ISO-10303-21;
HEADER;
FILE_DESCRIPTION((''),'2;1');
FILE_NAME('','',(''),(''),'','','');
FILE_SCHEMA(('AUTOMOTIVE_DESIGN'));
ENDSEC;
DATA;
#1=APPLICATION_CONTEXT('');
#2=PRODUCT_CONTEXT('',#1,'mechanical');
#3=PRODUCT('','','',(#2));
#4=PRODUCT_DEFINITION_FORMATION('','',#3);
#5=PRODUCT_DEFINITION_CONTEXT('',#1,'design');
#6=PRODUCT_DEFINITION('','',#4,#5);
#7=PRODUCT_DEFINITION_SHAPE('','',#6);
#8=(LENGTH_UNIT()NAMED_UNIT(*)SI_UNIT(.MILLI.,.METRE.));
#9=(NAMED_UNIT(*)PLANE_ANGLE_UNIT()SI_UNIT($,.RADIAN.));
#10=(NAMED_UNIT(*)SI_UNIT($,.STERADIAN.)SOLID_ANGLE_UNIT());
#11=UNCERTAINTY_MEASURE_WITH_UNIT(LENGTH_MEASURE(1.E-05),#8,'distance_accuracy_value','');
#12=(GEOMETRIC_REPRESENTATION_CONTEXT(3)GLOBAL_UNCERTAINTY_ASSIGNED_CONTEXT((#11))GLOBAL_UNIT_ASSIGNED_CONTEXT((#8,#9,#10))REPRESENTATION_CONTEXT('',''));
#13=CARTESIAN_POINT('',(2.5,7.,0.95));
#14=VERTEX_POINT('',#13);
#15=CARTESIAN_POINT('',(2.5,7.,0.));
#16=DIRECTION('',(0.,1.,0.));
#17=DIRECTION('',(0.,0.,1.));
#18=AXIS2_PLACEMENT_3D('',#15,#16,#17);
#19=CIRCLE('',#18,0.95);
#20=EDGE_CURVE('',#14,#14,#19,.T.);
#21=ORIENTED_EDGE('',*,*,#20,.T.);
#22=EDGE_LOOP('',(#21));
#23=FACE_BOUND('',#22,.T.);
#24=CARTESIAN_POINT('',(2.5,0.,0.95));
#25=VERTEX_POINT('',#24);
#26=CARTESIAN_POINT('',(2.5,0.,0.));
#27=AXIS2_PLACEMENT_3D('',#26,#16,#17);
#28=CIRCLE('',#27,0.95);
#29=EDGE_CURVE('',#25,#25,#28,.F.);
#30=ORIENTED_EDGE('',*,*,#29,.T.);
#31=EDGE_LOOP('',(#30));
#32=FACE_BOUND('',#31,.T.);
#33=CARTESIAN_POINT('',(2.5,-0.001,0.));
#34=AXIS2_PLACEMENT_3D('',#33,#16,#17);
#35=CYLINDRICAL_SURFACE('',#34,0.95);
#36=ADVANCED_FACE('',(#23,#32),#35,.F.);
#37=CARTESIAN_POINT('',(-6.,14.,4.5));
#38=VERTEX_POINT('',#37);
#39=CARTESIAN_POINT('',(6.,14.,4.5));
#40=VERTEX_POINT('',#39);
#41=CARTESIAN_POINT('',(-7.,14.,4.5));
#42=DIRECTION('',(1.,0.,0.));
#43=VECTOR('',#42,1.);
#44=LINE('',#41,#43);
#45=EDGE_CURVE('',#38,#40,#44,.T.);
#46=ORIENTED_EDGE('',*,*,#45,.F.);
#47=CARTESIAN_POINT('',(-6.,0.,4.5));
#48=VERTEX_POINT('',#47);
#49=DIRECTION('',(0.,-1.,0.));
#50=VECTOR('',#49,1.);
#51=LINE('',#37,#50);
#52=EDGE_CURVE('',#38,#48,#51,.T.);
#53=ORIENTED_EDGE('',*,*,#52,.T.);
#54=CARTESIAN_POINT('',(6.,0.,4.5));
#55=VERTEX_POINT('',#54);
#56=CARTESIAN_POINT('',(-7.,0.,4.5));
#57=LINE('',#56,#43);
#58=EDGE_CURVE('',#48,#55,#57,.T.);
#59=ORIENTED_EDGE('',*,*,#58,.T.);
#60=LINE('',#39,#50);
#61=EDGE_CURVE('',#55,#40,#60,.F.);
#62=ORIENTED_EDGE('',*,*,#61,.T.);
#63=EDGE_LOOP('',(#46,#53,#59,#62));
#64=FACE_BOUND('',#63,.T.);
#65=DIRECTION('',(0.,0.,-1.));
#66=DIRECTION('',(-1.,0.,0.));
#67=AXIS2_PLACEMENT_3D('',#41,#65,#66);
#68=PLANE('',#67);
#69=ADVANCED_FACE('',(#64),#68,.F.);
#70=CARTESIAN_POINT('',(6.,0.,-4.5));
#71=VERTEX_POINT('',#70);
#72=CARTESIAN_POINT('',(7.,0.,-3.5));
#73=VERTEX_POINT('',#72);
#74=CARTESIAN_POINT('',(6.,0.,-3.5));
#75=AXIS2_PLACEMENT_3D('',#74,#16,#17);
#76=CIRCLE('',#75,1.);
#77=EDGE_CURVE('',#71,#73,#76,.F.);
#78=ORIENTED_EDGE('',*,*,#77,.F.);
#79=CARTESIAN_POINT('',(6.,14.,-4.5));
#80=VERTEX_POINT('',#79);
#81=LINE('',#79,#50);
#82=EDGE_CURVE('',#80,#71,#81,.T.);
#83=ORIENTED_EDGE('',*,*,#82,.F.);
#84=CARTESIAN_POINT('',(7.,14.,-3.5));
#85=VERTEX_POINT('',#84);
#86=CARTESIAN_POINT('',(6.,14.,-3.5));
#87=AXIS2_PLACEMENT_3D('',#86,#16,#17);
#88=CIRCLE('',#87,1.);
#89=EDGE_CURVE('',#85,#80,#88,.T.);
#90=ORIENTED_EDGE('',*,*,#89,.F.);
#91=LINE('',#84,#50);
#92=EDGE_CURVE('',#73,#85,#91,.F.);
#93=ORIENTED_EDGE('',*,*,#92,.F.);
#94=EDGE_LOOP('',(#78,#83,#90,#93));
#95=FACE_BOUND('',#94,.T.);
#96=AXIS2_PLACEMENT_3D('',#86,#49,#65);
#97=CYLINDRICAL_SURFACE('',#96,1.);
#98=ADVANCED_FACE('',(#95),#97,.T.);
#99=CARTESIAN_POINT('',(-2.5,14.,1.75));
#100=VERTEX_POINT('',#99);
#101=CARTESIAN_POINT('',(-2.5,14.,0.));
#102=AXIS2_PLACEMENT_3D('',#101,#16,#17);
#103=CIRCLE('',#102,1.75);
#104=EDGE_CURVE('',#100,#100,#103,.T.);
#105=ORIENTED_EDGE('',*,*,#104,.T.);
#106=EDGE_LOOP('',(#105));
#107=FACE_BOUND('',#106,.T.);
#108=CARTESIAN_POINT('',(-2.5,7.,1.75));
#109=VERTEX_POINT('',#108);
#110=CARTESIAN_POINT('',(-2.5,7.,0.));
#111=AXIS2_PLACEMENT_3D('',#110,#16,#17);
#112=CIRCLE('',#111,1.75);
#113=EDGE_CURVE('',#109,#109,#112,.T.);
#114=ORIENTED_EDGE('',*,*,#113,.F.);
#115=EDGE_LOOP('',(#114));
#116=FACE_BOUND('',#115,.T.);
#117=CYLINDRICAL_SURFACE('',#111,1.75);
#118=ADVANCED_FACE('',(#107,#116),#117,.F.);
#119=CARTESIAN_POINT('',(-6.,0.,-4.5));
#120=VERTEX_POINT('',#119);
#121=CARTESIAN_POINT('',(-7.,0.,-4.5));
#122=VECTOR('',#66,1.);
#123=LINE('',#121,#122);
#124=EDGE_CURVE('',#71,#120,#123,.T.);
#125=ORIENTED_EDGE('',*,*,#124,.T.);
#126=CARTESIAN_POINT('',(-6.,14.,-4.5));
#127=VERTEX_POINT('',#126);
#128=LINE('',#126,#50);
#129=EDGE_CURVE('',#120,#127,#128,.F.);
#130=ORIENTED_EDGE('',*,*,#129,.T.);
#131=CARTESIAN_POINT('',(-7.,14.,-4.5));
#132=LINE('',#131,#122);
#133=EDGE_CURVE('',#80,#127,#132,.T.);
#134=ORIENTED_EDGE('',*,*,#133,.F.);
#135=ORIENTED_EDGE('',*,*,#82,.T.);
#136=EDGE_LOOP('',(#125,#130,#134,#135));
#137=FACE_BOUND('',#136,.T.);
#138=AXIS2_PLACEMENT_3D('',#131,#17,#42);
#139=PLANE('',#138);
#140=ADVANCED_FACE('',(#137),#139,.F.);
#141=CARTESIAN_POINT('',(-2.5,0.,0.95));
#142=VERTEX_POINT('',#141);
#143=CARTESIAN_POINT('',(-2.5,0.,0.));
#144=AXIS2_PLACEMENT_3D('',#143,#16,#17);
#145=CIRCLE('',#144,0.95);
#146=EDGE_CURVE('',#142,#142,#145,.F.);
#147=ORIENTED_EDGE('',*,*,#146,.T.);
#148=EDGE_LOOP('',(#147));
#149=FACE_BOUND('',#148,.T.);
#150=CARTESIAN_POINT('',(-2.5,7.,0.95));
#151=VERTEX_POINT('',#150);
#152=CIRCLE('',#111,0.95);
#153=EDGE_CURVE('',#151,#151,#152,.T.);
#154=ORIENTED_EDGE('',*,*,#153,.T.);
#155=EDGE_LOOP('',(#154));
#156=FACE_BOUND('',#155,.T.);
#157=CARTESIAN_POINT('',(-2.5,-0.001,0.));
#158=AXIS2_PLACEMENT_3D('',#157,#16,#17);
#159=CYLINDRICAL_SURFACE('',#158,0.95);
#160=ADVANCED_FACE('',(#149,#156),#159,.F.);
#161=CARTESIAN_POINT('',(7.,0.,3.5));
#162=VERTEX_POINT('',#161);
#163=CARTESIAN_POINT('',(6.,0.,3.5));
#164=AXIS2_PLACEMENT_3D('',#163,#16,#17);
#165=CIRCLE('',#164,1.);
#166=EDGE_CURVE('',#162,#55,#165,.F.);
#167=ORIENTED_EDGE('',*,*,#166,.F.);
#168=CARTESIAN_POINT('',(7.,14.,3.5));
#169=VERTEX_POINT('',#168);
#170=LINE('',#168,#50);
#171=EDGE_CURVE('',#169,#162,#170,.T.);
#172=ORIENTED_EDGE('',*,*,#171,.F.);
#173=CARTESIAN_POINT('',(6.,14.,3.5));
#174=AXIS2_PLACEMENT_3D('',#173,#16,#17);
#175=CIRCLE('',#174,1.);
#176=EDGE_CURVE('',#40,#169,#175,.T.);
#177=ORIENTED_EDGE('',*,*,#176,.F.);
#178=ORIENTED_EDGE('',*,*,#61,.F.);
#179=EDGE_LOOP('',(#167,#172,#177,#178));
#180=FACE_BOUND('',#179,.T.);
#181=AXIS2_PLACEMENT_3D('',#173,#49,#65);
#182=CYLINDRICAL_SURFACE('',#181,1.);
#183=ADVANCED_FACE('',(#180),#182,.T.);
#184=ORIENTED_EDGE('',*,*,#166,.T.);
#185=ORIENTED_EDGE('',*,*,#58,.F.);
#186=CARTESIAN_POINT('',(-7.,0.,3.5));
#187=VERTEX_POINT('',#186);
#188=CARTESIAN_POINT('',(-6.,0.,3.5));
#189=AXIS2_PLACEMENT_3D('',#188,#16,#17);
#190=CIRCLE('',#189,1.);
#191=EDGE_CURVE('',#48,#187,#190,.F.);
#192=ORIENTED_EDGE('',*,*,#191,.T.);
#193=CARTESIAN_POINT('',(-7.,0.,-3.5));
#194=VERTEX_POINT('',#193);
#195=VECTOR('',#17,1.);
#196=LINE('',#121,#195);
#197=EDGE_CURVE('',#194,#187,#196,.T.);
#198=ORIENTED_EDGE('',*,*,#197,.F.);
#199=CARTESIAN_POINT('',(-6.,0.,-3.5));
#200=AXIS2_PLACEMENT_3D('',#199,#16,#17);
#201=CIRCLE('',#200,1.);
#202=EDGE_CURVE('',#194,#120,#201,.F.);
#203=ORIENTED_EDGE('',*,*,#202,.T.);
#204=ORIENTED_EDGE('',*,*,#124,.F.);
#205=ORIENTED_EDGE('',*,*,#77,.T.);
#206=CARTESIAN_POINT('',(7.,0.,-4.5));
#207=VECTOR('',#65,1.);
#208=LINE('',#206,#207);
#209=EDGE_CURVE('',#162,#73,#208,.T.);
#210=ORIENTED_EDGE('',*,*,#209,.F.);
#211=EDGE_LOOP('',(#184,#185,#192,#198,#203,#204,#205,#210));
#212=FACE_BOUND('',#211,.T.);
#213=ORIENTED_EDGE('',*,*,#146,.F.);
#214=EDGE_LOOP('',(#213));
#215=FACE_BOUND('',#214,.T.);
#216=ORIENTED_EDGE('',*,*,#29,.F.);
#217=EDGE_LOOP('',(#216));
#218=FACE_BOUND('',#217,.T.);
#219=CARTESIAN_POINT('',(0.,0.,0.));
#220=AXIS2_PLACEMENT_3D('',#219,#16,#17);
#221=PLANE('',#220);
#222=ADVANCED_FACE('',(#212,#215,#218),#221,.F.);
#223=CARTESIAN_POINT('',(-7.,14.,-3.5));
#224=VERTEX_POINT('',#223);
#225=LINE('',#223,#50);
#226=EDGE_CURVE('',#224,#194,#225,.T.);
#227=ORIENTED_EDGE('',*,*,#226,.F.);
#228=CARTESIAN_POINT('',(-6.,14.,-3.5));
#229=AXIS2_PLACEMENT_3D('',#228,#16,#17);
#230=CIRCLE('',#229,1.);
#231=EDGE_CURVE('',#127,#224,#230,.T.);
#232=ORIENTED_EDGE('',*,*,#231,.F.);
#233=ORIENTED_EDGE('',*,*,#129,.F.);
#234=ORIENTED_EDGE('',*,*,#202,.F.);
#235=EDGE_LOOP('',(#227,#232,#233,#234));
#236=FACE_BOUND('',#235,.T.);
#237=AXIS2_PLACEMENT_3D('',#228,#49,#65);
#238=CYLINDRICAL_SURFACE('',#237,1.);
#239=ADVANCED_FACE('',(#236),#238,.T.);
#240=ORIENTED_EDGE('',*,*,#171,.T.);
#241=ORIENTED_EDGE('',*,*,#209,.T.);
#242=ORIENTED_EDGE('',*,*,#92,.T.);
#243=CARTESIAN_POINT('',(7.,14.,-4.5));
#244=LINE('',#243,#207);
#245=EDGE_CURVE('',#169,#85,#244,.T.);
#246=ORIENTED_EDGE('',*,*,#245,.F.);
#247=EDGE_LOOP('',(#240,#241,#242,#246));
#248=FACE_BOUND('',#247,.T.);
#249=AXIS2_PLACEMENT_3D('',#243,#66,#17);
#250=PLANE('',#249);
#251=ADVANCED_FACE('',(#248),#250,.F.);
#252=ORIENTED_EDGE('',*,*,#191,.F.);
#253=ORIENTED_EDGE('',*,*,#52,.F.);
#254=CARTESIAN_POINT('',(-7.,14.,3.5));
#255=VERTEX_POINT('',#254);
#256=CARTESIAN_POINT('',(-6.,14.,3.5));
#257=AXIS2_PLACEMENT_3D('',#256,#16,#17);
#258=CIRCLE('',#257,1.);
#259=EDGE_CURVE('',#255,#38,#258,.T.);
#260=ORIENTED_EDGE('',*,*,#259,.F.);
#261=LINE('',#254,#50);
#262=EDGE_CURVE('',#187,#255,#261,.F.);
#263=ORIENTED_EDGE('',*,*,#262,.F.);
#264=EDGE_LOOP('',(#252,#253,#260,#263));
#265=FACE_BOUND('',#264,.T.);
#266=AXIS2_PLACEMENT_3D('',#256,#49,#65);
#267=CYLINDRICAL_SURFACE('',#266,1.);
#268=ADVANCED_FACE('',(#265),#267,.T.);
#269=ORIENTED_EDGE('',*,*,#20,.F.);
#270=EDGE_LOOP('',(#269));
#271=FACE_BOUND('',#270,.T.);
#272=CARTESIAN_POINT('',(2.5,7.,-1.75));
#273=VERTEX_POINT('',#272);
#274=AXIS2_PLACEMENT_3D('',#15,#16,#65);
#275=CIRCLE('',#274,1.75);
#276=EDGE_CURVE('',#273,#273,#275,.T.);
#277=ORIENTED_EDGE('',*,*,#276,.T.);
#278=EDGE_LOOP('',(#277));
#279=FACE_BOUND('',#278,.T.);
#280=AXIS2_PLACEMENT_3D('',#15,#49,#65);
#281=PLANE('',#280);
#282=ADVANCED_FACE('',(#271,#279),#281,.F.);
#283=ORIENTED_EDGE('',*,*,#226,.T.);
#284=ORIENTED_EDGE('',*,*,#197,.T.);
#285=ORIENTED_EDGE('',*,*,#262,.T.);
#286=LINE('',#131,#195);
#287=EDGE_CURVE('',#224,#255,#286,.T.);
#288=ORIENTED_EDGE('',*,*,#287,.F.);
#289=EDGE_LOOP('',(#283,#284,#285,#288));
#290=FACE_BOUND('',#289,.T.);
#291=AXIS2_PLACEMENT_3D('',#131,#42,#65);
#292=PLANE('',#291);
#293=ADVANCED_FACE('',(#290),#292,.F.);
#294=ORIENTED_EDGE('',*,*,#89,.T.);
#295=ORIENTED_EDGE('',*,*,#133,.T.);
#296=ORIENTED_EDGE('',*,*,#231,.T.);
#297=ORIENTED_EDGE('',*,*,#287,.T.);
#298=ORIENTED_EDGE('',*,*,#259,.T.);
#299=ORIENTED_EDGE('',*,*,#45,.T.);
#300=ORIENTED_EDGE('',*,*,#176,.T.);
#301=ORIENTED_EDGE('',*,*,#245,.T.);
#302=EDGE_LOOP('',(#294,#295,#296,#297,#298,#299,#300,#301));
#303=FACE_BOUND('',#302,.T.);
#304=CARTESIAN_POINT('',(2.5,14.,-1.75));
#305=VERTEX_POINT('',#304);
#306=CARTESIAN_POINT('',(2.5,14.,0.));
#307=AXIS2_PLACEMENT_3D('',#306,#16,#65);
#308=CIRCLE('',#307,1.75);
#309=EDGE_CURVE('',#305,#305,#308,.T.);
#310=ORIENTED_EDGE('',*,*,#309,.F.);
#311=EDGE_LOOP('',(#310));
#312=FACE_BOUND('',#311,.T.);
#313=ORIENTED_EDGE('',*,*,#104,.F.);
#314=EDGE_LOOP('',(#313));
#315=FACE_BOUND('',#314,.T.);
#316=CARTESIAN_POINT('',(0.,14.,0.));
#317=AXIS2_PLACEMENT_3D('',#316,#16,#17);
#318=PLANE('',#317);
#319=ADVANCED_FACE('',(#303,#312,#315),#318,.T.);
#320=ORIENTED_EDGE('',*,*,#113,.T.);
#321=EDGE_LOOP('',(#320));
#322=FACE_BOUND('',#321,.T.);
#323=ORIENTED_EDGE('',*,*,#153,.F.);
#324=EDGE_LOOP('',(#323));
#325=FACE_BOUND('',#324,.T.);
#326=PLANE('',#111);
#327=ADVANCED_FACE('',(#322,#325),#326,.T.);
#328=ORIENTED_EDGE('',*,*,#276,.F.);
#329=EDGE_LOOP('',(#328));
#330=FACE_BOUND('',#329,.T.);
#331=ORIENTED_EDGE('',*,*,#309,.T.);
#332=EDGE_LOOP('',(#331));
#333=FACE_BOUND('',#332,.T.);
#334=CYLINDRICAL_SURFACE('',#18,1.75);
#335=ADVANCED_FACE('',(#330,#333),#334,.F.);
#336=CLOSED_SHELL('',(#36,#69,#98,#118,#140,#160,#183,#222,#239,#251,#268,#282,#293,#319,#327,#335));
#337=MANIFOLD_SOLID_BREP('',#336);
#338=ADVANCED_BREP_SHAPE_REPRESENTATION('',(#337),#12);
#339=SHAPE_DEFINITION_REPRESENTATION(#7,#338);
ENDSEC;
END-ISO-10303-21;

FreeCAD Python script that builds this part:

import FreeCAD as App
import Part
import Sketcher
Q = App.Units.Quantity


def edges_at(feature, points):
    """Names of the edges that pass closest to the given points."""
    edges = feature.Shape.Edges
    near = lambda p: min(range(len(edges)), key=lambda i: edges[i].distToShape(Part.Vertex(*p))[0])
    return sorted({f"Edge{near(p) + 1}" for p in points})

doc = App.newDocument("Part")
params = doc.addObject("Spreadsheet::Sheet", "Params")
for row, (alias, value) in enumerate([
    ("sketch1_width", "14 mm"),
    ("sketch1_height", "9 mm"),
    ("pad1_length", "14 mm"),
    ("fillet_radius", "1 mm"),
    ("sketch2_diameter", "3.5 mm"),
    ("pocket1_length", "7 mm"),
    ("sketch3_diameter", "1.9 mm"),
    ("sketch4_diameter", "1.9 mm"),
], start=1):
    params.set(f"A{row}", alias)
    params.set(f"B{row}", "=" + value)
    params.setAlias(f"B{row}", alias)

body = doc.addObject("PartDesign::Body", "Body")

# Sketch on XZ plane
sketch1 = body.newObject("Sketcher::SketchObject", "Sketch")
sketch1.AttachmentSupport = (doc.getObject("XZ_Plane"), [""])
sketch1.MapMode = "FlatFace"
sketch1.addGeometry(Part.LineSegment(App.Vector(-7, -4, 0), App.Vector(-7, 4, 0)), False)
sketch1.addGeometry(Part.LineSegment(App.Vector(-7, 4, 0), App.Vector(7, 4, 0)), False)
sketch1.addGeometry(Part.LineSegment(App.Vector(7, 4, 0), App.Vector(7, -4, 0)), False)
sketch1.addGeometry(Part.LineSegment(App.Vector(7, -4, 0), App.Vector(-7, -4, 0)), False)
sketch1.addConstraint(Sketcher.Constraint("Coincident", 0, 2, 1, 1))
sketch1.addConstraint(Sketcher.Constraint("Coincident", 1, 2, 2, 1))
sketch1.addConstraint(Sketcher.Constraint("Coincident", 2, 2, 3, 1))
sketch1.addConstraint(Sketcher.Constraint("Coincident", 3, 2, 0, 1))
sketch1.addConstraint(Sketcher.Constraint("Vertical", 0))
sketch1.addConstraint(Sketcher.Constraint("Horizontal", 1))
sketch1.addConstraint(Sketcher.Constraint("Vertical", 2))
sketch1.addConstraint(Sketcher.Constraint("Horizontal", 3))
sketch1.addConstraint(Sketcher.Constraint("Symmetric", 0, 2, 2, 2, -1, 1))
sketch1.addConstraint(Sketcher.Constraint("DistanceX", 1, 1, 1, 2, Q("14 mm")))
sketch1.addConstraint(Sketcher.Constraint("DistanceY", 0, 1, 0, 2, Q("9 mm")))
sketch1.setExpression("Constraints[9]", "Params.sketch1_width")
sketch1.setExpression("Constraints[10]", "Params.sketch1_height")
pad1 = body.newObject("PartDesign::Pad", "Pad")
pad1.Profile = sketch1
pad1.setExpression("Length", "Params.pad1_length")
pad1.Reversed = True
doc.recompute()

fillet = body.newObject("PartDesign::Fillet", "Fillet")
fillet.Base = (pad1, edges_at(pad1, [
    (7, 7, 4.5),
    (-7, 7, 4.5),
    (-7, 7, -4.5),
    (7, 7, -4.5),
]))
fillet.setExpression("Radius", "Params.fillet_radius")

# Sketch on XZ plane
sketch2 = body.newObject("Sketcher::SketchObject", "Sketch001")
sketch2.AttachmentSupport = (doc.getObject("XZ_Plane"), [""])
sketch2.MapMode = "FlatFace"
sketch2.AttachmentOffset = App.Placement(App.Vector(0, 0, -14), App.Rotation())
sketch2.addGeometry(Part.Circle(App.Vector(-2.5, 0, 0), App.Vector(0, 0, 1), 1.8), False)
sketch2.addGeometry(Part.Circle(App.Vector(2.5, 0, 0), App.Vector(0, 0, 1), 1.8), False)
sketch2.addConstraint(Sketcher.Constraint("Equal", 0, 1))
sketch2.addConstraint(Sketcher.Constraint("Symmetric", 0, 3, 1, 3, -1, 1))
sketch2.addConstraint(Sketcher.Constraint("PointOnObject", 0, 3, -1))
sketch2.addConstraint(Sketcher.Constraint("Diameter", 0, Q("3.5 mm")))
sketch2.addConstraint(Sketcher.Constraint("DistanceX", 0, 3, 1, 3, Q("5 mm")))
sketch2.setExpression("Constraints[3]", "Params.sketch2_diameter")
pocket1 = body.newObject("PartDesign::Pocket", "Pocket")
pocket1.Profile = sketch2
pocket1.setExpression("Length", "Params.pocket1_length")
pocket1.Reversed = True

# Sketch on XZ plane
sketch3 = body.newObject("Sketcher::SketchObject", "Sketch002")
sketch3.AttachmentSupport = (doc.getObject("XZ_Plane"), [""])
sketch3.MapMode = "FlatFace"
sketch3.AttachmentOffset = App.Placement(App.Vector(0, 0, -7), App.Rotation())
sketch3.addGeometry(Part.Circle(App.Vector(-2.5, 0, 0), App.Vector(0, 0, 1), 0.9), False)
sketch3.addConstraint(Sketcher.Constraint("PointOnObject", 0, 3, -1))
sketch3.addConstraint(Sketcher.Constraint("Diameter", 0, Q("1.9 mm")))
sketch3.addConstraint(Sketcher.Constraint("DistanceX", 0, 3, -1, 1, Q("2.5 mm")))
sketch3.setExpression("Constraints[1]", "Params.sketch3_diameter")
pocket2 = body.newObject("PartDesign::Pocket", "Pocket001")
pocket2.Profile = sketch3
pocket2.Type = "UpToFirst"
pocket2.Reversed = True

# Sketch on XZ plane
sketch4 = body.newObject("Sketcher::SketchObject", "Sketch003")
sketch4.AttachmentSupport = (doc.getObject("XZ_Plane"), [""])
sketch4.MapMode = "FlatFace"
sketch4.AttachmentOffset = App.Placement(App.Vector(0, 0, -7), App.Rotation())
sketch4.addGeometry(Part.Circle(App.Vector(2.5, 0, 0), App.Vector(0, 0, 1), 0.9), False)
sketch4.addConstraint(Sketcher.Constraint("PointOnObject", 0, 3, -1))
sketch4.addConstraint(Sketcher.Constraint("Diameter", 0, Q("1.9 mm")))
sketch4.addConstraint(Sketcher.Constraint("DistanceX", -1, 1, 0, 3, Q("2.5 mm")))
sketch4.setExpression("Constraints[1]", "Params.sketch4_diameter")
pocket3 = body.newObject("PartDesign::Pocket", "Pocket002")
pocket3.Profile = sketch4
pocket3.Type = "UpToFirst"
pocket3.Reversed = True

doc.recompute()
